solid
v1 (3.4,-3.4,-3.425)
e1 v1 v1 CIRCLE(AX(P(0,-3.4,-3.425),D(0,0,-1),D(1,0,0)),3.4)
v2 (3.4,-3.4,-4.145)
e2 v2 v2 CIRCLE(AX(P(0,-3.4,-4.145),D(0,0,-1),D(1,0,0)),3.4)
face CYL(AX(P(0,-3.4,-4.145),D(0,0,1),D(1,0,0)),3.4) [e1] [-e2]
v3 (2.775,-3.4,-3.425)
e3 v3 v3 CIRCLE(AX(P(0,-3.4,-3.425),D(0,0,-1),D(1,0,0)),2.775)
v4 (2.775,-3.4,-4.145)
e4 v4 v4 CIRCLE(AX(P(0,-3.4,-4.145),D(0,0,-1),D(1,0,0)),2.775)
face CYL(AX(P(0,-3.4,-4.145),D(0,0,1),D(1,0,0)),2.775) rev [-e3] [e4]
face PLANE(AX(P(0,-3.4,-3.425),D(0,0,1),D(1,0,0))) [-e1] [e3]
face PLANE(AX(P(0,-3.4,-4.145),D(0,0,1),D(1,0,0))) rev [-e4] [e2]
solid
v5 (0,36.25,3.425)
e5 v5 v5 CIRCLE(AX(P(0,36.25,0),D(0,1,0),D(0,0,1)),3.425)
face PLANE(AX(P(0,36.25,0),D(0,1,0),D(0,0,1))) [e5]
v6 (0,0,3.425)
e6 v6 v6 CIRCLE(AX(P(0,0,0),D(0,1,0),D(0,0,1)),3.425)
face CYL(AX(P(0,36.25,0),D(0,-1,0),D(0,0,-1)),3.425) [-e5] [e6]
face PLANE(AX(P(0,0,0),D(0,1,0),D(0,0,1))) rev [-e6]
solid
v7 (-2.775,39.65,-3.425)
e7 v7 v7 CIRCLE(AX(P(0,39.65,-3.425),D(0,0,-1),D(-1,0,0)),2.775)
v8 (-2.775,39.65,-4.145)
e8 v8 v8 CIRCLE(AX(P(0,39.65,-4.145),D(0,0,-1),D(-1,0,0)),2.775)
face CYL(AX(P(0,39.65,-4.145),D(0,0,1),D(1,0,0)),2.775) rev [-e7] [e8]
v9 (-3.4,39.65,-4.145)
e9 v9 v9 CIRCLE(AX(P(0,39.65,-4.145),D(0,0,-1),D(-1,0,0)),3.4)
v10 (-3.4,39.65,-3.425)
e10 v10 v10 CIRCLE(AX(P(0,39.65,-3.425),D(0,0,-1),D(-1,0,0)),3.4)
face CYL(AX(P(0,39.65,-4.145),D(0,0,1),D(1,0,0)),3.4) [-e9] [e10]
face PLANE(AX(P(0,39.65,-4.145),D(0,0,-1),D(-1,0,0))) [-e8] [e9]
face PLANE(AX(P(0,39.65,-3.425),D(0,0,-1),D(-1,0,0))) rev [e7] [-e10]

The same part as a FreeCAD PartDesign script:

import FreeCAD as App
import Part
import Sketcher

V = App.Vector

doc = App.newDocument("Part")
params = doc.addObject("Spreadsheet::Sheet", "Params")
for row, (alias, value) in enumerate([
    ("sketch1_diameter", "6.85 mm"),
    ("pad1_length", "36.25 mm"),
    ("sketch2_diameter", "6.8 mm"),
    ("sketch2_diameter2", "5.55 mm"),
    ("pad2_length", "0.72 mm"),
    ("sketch3_diameter", "6.8 mm"),
    ("sketch3_diameter2", "5.55 mm"),
    ("pad3_length", "0.72 mm"),
], start=1):
    params.set(f"A{row}", alias)
    params.set(f"B{row}", "=" + value)
    params.setAlias(f"B{row}", alias)

body = doc.addObject("PartDesign::Body", "Body")

# Sketch on XZ plane
sketch1 = body.newObject("Sketcher::SketchObject", "Sketch")
sketch1.AttachmentSupport = (doc.getObject("XZ_Plane"), [""])
sketch1.MapMode = "FlatFace"
sketch1.addGeometry(Part.Circle(V(0, 0, 0), V(0, 0, 1), 3.4), False)
sketch1.addConstraint(Sketcher.Constraint("Coincident", 0, 3, -1, 1))
sketch1.addConstraint(Sketcher.Constraint("Diameter", 0, 6.85))
sketch1.setExpression("Constraints[1]", "Params.sketch1_diameter")
pad1 = body.newObject("PartDesign::Pad", "Pad")
pad1.Profile = sketch1
pad1.setExpression("Length", "Params.pad1_length")
pad1.Reversed = True
body2 = doc.addObject("PartDesign::Body", "Body001")

# Sketch on XY plane
sketch2 = body2.newObject("Sketcher::SketchObject", "Sketch001")
sketch2.AttachmentSupport = (doc.getObject("XY_Plane001"), [""])
sketch2.MapMode = "FlatFace"
sketch2.AttachmentOffset = App.Placement(V(0, 0, -3.425), App.Rotation())
sketch2.addGeometry(Part.Circle(V(0, 39.6, 0), V(0, 0, 1), 3.4), False)
sketch2.addGeometry(Part.Circle(V(0, 39.6, 0), V(0, 0, 1), 2.8), False)
sketch2.addConstraint(Sketcher.Constraint("Coincident", 1, 3, 0, 3))
sketch2.addConstraint(Sketcher.Constraint("PointOnObject", 0, 3, -2))
sketch2.addConstraint(Sketcher.Constraint("Diameter", 0, 6.8))
sketch2.addConstraint(Sketcher.Constraint("Diameter", 1, 5.55))
sketch2.addConstraint(Sketcher.Constraint("DistanceY", -1, 1, 0, 3, 39.65))
sketch2.setExpression("Constraints[2]", "Params.sketch2_diameter")
sketch2.setExpression("Constraints[3]", "Params.sketch2_diameter2")
pad2 = body2.newObject("PartDesign::Pad", "Pad001")
pad2.Profile = sketch2
pad2.setExpression("Length", "Params.pad2_length")
pad2.Reversed = True
body3 = doc.addObject("PartDesign::Body", "Body002")

# Sketch on XY plane
sketch3 = body3.newObject("Sketcher::SketchObject", "Sketch002")
sketch3.AttachmentSupport = (doc.getObject("XY_Plane002"), [""])
sketch3.MapMode = "FlatFace"
sketch3.AttachmentOffset = App.Placement(V(0, 0, -3.425), App.Rotation())
sketch3.addGeometry(Part.Circle(V(0, -3.4, 0), V(0, 0, 1), 3.4), False)
sketch3.addGeometry(Part.Circle(V(0, -3.4, 0), V(0, 0, 1), 2.8), False)
sketch3.addConstraint(Sketcher.Constraint("Coincident", 1, 3, 0, 3))
sketch3.addConstraint(Sketcher.Constraint("PointOnObject", 0, 3, -2))
sketch3.addConstraint(Sketcher.Constraint("Diameter", 0, 6.8))
sketch3.addConstraint(Sketcher.Constraint("Diameter", 1, 5.55))
sketch3.addConstraint(Sketcher.Constraint("DistanceY", 0, 3, -1, 1, 3.4))
sketch3.setExpression("Constraints[2]", "Params.sketch3_diameter")
sketch3.setExpression("Constraints[3]", "Params.sketch3_diameter2")
pad3 = body3.newObject("PartDesign::Pad", "Pad002")
pad3.Profile = sketch3
pad3.setExpression("Length", "Params.pad3_length")
pad3.Reversed = True

doc.recompute()
